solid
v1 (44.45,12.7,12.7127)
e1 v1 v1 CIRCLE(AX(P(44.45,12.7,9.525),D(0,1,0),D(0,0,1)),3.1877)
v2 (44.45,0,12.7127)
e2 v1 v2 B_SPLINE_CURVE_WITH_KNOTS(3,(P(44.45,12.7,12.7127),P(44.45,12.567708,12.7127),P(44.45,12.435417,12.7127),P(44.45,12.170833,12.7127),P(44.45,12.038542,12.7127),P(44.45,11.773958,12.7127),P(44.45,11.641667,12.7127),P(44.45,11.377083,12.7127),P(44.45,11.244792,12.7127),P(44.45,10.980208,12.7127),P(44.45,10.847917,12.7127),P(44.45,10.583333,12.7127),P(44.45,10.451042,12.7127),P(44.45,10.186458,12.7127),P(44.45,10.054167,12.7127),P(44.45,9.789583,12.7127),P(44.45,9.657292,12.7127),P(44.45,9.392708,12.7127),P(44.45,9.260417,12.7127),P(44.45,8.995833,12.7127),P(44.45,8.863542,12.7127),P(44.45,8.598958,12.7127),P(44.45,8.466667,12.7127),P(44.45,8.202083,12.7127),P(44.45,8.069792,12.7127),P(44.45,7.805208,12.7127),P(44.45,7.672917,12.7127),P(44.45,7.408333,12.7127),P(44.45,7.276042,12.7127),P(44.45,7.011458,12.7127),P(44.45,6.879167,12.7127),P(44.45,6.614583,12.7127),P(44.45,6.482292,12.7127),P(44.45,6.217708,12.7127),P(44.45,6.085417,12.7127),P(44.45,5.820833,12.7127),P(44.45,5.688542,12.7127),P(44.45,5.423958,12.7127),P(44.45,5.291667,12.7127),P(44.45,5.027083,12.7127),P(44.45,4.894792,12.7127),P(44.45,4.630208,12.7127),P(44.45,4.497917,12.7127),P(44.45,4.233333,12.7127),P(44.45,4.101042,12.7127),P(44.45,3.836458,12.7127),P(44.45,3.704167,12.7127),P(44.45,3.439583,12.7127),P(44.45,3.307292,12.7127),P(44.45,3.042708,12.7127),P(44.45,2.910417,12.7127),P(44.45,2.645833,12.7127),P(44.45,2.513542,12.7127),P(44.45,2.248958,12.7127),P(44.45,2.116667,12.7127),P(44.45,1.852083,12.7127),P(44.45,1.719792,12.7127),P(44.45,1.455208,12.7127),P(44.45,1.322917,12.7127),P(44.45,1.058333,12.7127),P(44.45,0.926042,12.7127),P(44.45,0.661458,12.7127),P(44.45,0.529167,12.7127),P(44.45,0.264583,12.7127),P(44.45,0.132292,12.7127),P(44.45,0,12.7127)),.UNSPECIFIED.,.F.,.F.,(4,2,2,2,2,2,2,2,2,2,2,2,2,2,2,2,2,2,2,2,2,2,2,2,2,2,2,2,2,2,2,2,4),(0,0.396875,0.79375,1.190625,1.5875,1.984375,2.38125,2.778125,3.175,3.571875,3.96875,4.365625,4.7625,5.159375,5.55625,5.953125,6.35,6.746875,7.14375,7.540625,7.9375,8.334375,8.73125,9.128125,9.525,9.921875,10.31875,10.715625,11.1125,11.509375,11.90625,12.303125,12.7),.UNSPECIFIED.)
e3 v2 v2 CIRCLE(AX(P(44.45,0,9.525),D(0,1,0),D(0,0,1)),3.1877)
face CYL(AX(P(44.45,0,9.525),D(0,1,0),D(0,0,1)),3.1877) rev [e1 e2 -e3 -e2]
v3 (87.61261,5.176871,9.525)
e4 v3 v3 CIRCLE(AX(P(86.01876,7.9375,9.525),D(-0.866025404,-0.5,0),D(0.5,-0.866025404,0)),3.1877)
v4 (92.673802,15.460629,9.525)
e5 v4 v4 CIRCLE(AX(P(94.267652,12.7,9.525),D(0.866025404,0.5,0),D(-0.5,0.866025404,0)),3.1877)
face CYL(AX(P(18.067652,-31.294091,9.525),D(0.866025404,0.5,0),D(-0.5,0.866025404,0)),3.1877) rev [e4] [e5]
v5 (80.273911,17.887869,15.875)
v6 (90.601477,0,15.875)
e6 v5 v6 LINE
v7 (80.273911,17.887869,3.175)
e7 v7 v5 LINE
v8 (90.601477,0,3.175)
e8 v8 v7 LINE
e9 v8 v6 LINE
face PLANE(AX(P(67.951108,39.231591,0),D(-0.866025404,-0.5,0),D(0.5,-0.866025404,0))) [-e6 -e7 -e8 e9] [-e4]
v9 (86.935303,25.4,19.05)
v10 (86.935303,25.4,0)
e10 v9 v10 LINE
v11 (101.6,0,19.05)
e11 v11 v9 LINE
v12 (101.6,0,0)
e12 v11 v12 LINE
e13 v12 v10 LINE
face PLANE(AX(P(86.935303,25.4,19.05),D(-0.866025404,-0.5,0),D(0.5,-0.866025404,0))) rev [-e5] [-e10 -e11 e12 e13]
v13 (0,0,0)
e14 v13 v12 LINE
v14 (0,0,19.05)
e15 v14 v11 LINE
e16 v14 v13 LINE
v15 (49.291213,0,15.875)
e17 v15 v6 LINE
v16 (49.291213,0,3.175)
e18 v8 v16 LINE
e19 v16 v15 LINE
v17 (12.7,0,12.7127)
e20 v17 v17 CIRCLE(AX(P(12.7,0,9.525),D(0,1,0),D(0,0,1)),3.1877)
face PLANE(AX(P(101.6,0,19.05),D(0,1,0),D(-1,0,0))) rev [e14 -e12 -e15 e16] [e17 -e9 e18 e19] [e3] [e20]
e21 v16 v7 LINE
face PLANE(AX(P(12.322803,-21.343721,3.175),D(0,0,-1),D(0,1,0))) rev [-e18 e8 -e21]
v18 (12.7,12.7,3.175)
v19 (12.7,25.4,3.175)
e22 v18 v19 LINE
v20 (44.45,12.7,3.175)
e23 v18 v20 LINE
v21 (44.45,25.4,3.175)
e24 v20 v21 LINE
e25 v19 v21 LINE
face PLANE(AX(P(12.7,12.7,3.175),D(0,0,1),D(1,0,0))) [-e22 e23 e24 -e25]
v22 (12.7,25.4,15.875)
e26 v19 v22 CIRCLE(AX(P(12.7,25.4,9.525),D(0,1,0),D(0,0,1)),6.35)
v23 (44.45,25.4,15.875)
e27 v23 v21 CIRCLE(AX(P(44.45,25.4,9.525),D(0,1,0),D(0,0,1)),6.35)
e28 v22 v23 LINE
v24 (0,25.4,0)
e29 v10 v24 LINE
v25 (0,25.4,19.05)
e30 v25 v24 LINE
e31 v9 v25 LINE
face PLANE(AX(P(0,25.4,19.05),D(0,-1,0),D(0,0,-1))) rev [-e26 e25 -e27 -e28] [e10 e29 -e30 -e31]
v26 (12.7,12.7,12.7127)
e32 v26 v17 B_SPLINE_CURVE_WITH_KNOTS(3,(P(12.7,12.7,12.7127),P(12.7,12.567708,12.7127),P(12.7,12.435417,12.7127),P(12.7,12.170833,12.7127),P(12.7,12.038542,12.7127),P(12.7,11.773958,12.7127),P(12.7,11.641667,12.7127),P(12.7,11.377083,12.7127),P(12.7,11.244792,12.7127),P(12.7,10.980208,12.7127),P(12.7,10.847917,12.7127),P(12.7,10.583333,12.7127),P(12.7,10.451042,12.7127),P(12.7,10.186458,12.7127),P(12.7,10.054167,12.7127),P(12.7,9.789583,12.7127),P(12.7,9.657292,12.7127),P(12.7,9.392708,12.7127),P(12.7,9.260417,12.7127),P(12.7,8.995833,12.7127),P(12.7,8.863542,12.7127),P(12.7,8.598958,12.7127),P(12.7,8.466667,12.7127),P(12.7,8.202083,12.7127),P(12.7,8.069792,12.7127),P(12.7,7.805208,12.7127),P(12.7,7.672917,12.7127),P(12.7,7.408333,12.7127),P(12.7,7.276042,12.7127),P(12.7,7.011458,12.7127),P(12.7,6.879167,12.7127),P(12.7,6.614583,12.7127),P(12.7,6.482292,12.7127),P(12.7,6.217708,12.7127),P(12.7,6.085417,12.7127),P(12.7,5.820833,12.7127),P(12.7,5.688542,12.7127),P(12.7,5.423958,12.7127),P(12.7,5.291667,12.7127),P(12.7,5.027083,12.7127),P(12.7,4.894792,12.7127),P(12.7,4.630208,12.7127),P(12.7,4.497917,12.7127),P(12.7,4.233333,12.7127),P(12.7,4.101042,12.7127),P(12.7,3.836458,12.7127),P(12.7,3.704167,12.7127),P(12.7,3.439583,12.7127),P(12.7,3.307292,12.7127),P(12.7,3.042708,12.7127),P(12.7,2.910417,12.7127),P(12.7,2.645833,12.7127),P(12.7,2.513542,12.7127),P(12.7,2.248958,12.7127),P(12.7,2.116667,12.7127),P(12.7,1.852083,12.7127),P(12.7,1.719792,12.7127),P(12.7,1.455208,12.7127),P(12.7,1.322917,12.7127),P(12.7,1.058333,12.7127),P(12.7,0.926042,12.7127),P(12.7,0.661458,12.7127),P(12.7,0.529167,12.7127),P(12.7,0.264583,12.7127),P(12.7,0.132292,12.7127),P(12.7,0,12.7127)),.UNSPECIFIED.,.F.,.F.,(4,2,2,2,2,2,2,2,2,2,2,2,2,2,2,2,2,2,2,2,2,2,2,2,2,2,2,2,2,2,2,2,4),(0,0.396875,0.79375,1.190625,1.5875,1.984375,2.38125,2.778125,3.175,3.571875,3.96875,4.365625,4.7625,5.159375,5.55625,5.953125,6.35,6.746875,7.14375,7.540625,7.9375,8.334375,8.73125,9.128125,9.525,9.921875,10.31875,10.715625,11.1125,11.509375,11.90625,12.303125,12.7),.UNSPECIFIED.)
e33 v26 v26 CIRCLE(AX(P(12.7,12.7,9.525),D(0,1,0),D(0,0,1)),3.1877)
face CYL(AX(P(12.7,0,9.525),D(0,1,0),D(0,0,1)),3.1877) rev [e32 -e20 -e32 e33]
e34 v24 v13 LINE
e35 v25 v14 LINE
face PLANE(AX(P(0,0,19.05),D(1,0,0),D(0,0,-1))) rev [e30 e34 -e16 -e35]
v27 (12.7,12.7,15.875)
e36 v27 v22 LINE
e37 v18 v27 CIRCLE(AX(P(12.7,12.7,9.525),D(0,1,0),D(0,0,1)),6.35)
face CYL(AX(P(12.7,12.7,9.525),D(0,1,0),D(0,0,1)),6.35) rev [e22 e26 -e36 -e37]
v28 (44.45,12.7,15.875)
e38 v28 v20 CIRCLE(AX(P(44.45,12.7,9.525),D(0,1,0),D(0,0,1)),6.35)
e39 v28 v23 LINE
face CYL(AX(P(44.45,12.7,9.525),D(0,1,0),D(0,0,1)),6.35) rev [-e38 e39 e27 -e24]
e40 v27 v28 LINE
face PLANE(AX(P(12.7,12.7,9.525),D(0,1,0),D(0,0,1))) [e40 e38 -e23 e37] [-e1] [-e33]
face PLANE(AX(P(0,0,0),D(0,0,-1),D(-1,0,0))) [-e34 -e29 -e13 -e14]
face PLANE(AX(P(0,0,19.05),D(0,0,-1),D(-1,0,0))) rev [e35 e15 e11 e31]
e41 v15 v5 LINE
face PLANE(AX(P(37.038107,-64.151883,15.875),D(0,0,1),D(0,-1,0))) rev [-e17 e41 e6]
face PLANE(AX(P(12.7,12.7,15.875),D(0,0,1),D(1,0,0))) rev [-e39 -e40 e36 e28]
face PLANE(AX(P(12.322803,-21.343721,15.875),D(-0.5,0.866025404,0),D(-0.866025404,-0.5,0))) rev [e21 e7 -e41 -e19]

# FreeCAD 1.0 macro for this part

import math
import FreeCAD as App
import Part
import Sketcher
Q = App.Units.Quantity

doc = App.newDocument("Part")
body = doc.addObject("PartDesign::Body", "Body")

# Sketch on XY plane
sketch1 = body.newObject("Sketcher::SketchObject", "Sketch")
sketch1.AttachmentSupport = (doc.getObject("XY_Plane"), [""])
sketch1.MapMode = "FlatFace"
sketch1.addGeometry([
    Part.LineSegment(App.Vector(0, 25, 0), App.Vector(0, 0, 0)),
    Part.LineSegment(App.Vector(0, 0, 0), App.Vector(102, 0, 0)),
    Part.LineSegment(App.Vector(102, 0, 0), App.Vector(87, 25, 0)),
    Part.LineSegment(App.Vector(87, 25, 0), App.Vector(0, 25, 0)),
], False)
sketch1.addConstraint([
    Sketcher.Constraint("Coincident", 0, 2, 1, 1),
    Sketcher.Constraint("Coincident", 1, 2, 2, 1),
    Sketcher.Constraint("Coincident", 2, 2, 3, 1),
    Sketcher.Constraint("Coincident", 3, 2, 0, 1),
    Sketcher.Constraint("Vertical", 0),
    Sketcher.Constraint("Horizontal", 1),
    Sketcher.Constraint("Horizontal", 3),
    Sketcher.Constraint("Coincident", 0, 2, -1, 1),
    Sketcher.Constraint("DistanceX", 1, 1, 1, 2, Q("4 in")),
    Sketcher.Constraint("DistanceY", 0, 2, 0, 1, Q("1 in")),
    Sketcher.Constraint("Angle", 2, Q("120 deg")),
])
pad1 = body.newObject("PartDesign::Pad", "Pad")
pad1.Profile = sketch1
pad1.Length = Q("0.75 in")

# Sketch on an angled plane
sketch2 = body.newObject("Sketcher::SketchObject", "Sketch001")
sketch2.Placement = App.Placement(App.Vector(67.951108, 39.231591, 0), App.Rotation(App.Vector(0, 0, -1), App.Vector(-0.5, 0.866025404, 0), App.Vector(0.866025404, 0.5, 0), "ZXY"))
sketch2.addGeometry([
    Part.LineSegment(App.Vector(-16, -25, 0), App.Vector(-16, -74, 0)),
    Part.LineSegment(App.Vector(-16, -74, 0), App.Vector(-3, -74, 0)),
    Part.LineSegment(App.Vector(-3, -74, 0), App.Vector(-3, -25, 0)),
    Part.LineSegment(App.Vector(-3, -25, 0), App.Vector(-16, -25, 0)),
], False)
sketch2.addConstraint([
    Sketcher.Constraint("Coincident", 0, 2, 1, 1),
    Sketcher.Constraint("Coincident", 1, 2, 2, 1),
    Sketcher.Constraint("Coincident", 2, 2, 3, 1),
    Sketcher.Constraint("Coincident", 3, 2, 0, 1),
    Sketcher.Constraint("Vertical", 0),
    Sketcher.Constraint("Horizontal", 1),
    Sketcher.Constraint("Vertical", 2),
    Sketcher.Constraint("Horizontal", 3),
    Sketcher.Constraint("DistanceX", 1, 1, 1, 2, Q("0.5 in")),
    Sketcher.Constraint("DistanceX", 0, 2, -1, 1, Q("0.625 in")),
    Sketcher.Constraint("DistanceY", 0, 2, 0, 1, 49.430607),
    Sketcher.Constraint("DistanceY", 0, 2, -1, 1, 74.076214),
])
pocket1 = body.newObject("PartDesign::Pocket", "Pocket")
pocket1.Profile = sketch2
pocket1.Type = "ThroughAll"

# Sketch on an angled plane
sketch3 = body.newObject("Sketcher::SketchObject", "Sketch002")
sketch3.Placement = App.Placement(App.Vector(76.2, 43.994091, 0), App.Rotation(App.Vector(0, 0, -1), App.Vector(-0.5, 0.866025404, 0), App.Vector(0.866025404, 0.5, 0), "ZXY"))
sketch3.addGeometry(Part.Circle(App.Vector(-9.5, -36.1, 0), App.Vector(0, 0, 1), 3.2), False)
sketch3.addConstraint([
    Sketcher.Constraint("Diameter", 0, Q("0.251 in")),
    Sketcher.Constraint("DistanceX", 0, 3, -1, 1, Q("0.375 in")),
    Sketcher.Constraint("DistanceY", 0, 3, -1, 1, 36.135303),
])
pocket2 = body.newObject("PartDesign::Pocket", "Pocket001")
pocket2.Profile = sketch3
pocket2.Type = "ThroughAll"

# Sketch on XZ plane
sketch4 = body.newObject("Sketcher::SketchObject", "Sketch003")
sketch4.AttachmentSupport = (doc.getObject("XZ_Plane"), [""])
sketch4.MapMode = "FlatFace"
sketch4.AttachmentOffset = App.Placement(App.Vector(0, 0, -1 * 25.4), App.Rotation())
sketch4.addGeometry([
    Part.LineSegment(App.Vector(44, 3, 0), App.Vector(13, 3, 0)),
    Part.ArcOfCircle(Part.Circle(App.Vector(13, 10, 0), App.Vector(0, 0, 1), 6), math.radians(90), math.radians(270)),
    Part.LineSegment(App.Vector(13, 16, 0), App.Vector(44, 16, 0)),
    Part.ArcOfCircle(Part.Circle(App.Vector(44, 10, 0), App.Vector(0, 0, 1), 6), math.radians(-90), math.radians(90)),
], False)
sketch4.addConstraint([
    Sketcher.Constraint("Tangent", 0, 2, 1, 2),
    Sketcher.Constraint("Tangent", 1, 1, 2, 1),
    Sketcher.Constraint("Tangent", 2, 2, 3, 2),
    Sketcher.Constraint("Tangent", 3, 1, 0, 1),
    Sketcher.Constraint("Horizontal", 0),
    Sketcher.Constraint("Horizontal", 2),
    Sketcher.Constraint("Radius", 1, Q("0.25 in")),
    Sketcher.Constraint("DistanceX", 0, 2, 0, 1, Q("1.25 in")),
    Sketcher.Constraint("DistanceX", -1, 1, 1, 3, Q("0.5 in")),
    Sketcher.Constraint("DistanceY", -1, 1, 1, 3, Q("0.375 in")),
])
pocket3 = body.newObject("PartDesign::Pocket", "Pocket002")
pocket3.Profile = sketch4
pocket3.Length = Q("0.5 in")
pocket3.Reversed = True

# Sketch on XZ plane
sketch5 = body.newObject("Sketcher::SketchObject", "Sketch004")
sketch5.AttachmentSupport = (doc.getObject("XZ_Plane"), [""])
sketch5.MapMode = "FlatFace"
sketch5.AttachmentOffset = App.Placement(App.Vector(0, 0, -1 * 25.4), App.Rotation())
sketch5.addGeometry([
    Part.Circle(App.Vector(12.7, 9.5, 0), App.Vector(0, 0, 1), 3.2),
    Part.Circle(App.Vector(44.5, 9.5, 0), App.Vector(0, 0, 1), 3.2),
], False)
sketch5.addConstraint([
    Sketcher.Constraint("Equal", 0, 1),
    Sketcher.Constraint("Horizontal", 0, 3, 1, 3),
    Sketcher.Constraint("Diameter", 0, Q("0.251 in")),
    Sketcher.Constraint("DistanceX", -1, 1, 0, 3, Q("0.5 in")),
    Sketcher.Constraint("DistanceX", -1, 1, 1, 3, Q("1.75 in")),
    Sketcher.Constraint("DistanceY", -1, 1, 0, 3, Q("0.375 in")),
])
pocket4 = body.newObject("PartDesign::Pocket", "Pocket003")
pocket4.Profile = sketch5
pocket4.Type = "ThroughAll"
pocket4.Reversed = True

doc.recompute()
